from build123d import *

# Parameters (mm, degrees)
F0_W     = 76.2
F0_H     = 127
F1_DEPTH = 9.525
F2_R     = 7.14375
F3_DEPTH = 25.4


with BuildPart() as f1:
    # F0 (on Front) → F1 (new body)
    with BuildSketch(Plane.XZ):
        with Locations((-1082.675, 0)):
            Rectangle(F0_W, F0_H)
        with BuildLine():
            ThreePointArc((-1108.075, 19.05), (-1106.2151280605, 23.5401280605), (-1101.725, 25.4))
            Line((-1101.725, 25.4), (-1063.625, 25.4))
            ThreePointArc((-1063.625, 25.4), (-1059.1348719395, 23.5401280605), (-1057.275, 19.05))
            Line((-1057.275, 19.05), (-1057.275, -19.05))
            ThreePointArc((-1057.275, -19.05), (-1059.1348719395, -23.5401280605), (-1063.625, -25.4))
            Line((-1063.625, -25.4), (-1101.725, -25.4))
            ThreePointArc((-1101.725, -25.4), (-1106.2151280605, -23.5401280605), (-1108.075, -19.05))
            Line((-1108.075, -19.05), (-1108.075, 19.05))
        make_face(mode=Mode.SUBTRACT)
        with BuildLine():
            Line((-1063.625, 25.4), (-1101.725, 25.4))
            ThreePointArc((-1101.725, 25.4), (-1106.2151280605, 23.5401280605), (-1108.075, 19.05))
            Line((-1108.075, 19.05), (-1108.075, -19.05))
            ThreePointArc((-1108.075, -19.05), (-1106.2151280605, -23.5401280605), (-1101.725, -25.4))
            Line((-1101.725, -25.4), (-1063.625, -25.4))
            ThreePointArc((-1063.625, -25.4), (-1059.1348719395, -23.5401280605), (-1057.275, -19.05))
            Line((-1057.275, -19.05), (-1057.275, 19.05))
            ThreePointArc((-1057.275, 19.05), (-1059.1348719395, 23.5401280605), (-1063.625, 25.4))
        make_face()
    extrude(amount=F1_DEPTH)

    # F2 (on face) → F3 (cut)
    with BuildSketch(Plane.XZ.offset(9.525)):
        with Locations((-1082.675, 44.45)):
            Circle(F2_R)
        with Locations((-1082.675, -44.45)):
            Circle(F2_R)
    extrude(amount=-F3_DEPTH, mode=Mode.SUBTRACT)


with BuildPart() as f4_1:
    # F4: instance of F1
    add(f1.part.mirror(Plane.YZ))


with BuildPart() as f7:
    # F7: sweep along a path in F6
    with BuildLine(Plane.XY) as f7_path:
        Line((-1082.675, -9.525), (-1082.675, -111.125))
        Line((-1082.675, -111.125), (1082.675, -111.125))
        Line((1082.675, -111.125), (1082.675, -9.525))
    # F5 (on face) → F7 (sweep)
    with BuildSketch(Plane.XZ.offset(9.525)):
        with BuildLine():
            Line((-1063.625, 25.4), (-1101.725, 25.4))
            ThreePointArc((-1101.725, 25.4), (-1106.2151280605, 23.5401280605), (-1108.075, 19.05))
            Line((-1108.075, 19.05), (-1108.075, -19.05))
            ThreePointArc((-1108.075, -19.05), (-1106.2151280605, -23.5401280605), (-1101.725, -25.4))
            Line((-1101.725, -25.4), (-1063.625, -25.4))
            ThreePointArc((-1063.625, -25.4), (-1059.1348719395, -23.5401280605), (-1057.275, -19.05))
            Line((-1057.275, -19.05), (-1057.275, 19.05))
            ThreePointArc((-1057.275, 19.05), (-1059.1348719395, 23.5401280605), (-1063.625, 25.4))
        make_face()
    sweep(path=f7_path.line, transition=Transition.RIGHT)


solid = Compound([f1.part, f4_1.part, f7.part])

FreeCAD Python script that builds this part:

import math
import FreeCAD as App
import Part
import Sketcher

V = App.Vector
Q = App.Units.Quantity

doc = App.newDocument("Part")
params = doc.addObject("Spreadsheet::Sheet", "Params")
for row, (alias, value) in enumerate([
    ("sketch1_width", "3 in"),
    ("sketch1_height", "5 in"),
    ("pad1_length", "0.375 in"),
    ("sketch2_diameter", "0.5625 in"),
    ("pocket1_length", "1 in"),
    ("sketch3_radius", "0.25 in"),
    ("sketch3_width", "1.5 in"),
    ("sketch4_height", "4 in"),
    ("sketch4_width", "85.25 in"),
], start=1):
    params.set(f"A{row}", alias)
    params.set(f"B{row}", "=" + value)
    params.setAlias(f"B{row}", alias)

body = doc.addObject("PartDesign::Body", "Body")

# Sketch on XZ plane
sketch1 = body.newObject("Sketcher::SketchObject", "Sketch")
sketch1.AttachmentSupport = (doc.getObject("XZ_Plane"), [""])
sketch1.MapMode = "FlatFace"
sketch1.addGeometry([
    Part.LineSegment(V(-1121, 64, 0), V(-1121, -64, 0)),
    Part.LineSegment(V(-1121, -64, 0), V(-1045, -64, 0)),
    Part.LineSegment(V(-1045, -64, 0), V(-1045, 64, 0)),
    Part.LineSegment(V(-1045, 64, 0), V(-1121, 64, 0)),
], False)
sketch1.addConstraint([
    Sketcher.Constraint("Coincident", 0, 2, 1, 1),
    Sketcher.Constraint("Coincident", 1, 2, 2, 1),
    Sketcher.Constraint("Coincident", 2, 2, 3, 1),
    Sketcher.Constraint("Coincident", 3, 2, 0, 1),
    Sketcher.Constraint("Vertical", 0),
    Sketcher.Constraint("Horizontal", 1),
    Sketcher.Constraint("Vertical", 2),
    Sketcher.Constraint("Horizontal", 3),
    Sketcher.Constraint("DistanceX", 1, 1, 1, 2, Q("3 in")),
    Sketcher.Constraint("DistanceY", 0, 2, 0, 1, Q("5 in")),
    Sketcher.Constraint("DistanceY", 0, 2, -1, 1, Q("2.5 in")),
    Sketcher.Constraint("DistanceX", 0, 2, -1, 1, Q("44.125 in")),
])
sketch1.setExpression("Constraints[8]", "Params.sketch1_width")
sketch1.setExpression("Constraints[9]", "Params.sketch1_height")
pad1 = body.newObject("PartDesign::Pad", "Pad")
pad1.Profile = sketch1
pad1.setExpression("Length", "Params.pad1_length")

# Sketch on XZ plane
sketch2 = body.newObject("Sketcher::SketchObject", "Sketch001")
sketch2.AttachmentSupport = (doc.getObject("XZ_Plane"), [""])
sketch2.MapMode = "FlatFace"
sketch2.AttachmentOffset = App.Placement(V(0, 0, 0.375 * 25.4), App.Rotation())
sketch2.addGeometry([
    Part.Circle(V(-1083, 44, 0), V(0, 0, 1), 7),
    Part.Circle(V(-1083, -44, 0), V(0, 0, 1), 7),
], False)
sketch2.addConstraint([
    Sketcher.Constraint("Equal", 0, 1),
    Sketcher.Constraint("Symmetric", 0, 3, 1, 3, -1),
    Sketcher.Constraint("Diameter", 0, Q("0.5625 in")),
    Sketcher.Constraint("DistanceY", 1, 3, 0, 3, Q("3.5 in")),
    Sketcher.Constraint("DistanceX", 0, 3, -1, 1, Q("42.625 in")),
])
sketch2.setExpression("Constraints[2]", "Params.sketch2_diameter")
pocket1 = body.newObject("PartDesign::Pocket", "Pocket")
pocket1.Profile = sketch2
pocket1.setExpression("Length", "Params.pocket1_length")
body2 = doc.addObject("PartDesign::Body", "Body001")
doc.recompute()

mirroring = doc.addObject("Part::Mirroring", "Mirroring")
mirroring.Source = body
mirroring.Base = V(0, 0, 0)
mirroring.Normal = V(1, 0, 0)
body2.BaseFeature = mirroring
doc.recompute()
body3 = doc.addObject("PartDesign::Body", "Body002")

# Sketch on XZ plane
sketch3 = body3.newObject("Sketcher::SketchObject", "Sketch002")
sketch3.AttachmentSupport = (doc.getObject("XZ_Plane002"), [""])
sketch3.MapMode = "FlatFace"
sketch3.AttachmentOffset = App.Placement(V(0, 0, 0.375 * 25.4), App.Rotation())
sketch3.addGeometry([
    Part.LineSegment(V(-1064, 25, 0), V(-1102, 25, 0)),  # 0
    Part.ArcOfCircle(Part.Circle(V(-1102, 19, 0), V(0, 0, 1), 6), math.radians(90), math.radians(180)),  # 1
    Part.LineSegment(V(-1108, 19, 0), V(-1108, -19, 0)),  # 2
    Part.ArcOfCircle(Part.Circle(V(-1102, -19, 0), V(0, 0, 1), 6), math.radians(180), math.radians(270)),  # 3
    Part.LineSegment(V(-1102, -25, 0), V(-1064, -25, 0)),  # 4
    Part.ArcOfCircle(Part.Circle(V(-1064, -19, 0), V(0, 0, 1), 6), math.radians(-90), math.radians(0)),  # 5
    Part.LineSegment(V(-1057, -19, 0), V(-1057, 19, 0)),  # 6
    Part.ArcOfCircle(Part.Circle(V(-1064, 19, 0), V(0, 0, 1), 6), math.radians(0), math.radians(90)),  # 7
], False)
sketch3.addConstraint([
    Sketcher.Constraint("Tangent", 0, 2, 1, 1),
    Sketcher.Constraint("Tangent", 1, 2, 2, 1),
    Sketcher.Constraint("Tangent", 2, 2, 3, 1),
    Sketcher.Constraint("Tangent", 3, 2, 4, 1),
    Sketcher.Constraint("Tangent", 4, 2, 5, 1),
    Sketcher.Constraint("Tangent", 5, 2, 6, 1),
    Sketcher.Constraint("Tangent", 6, 2, 7, 1),
    Sketcher.Constraint("Tangent", 7, 2, 0, 1),
    Sketcher.Constraint("Horizontal", 0),
    Sketcher.Constraint("Vertical", 2),
    Sketcher.Constraint("Horizontal", 4),
    Sketcher.Constraint("Vertical", 6),
    Sketcher.Constraint("Equal", 1, 3),
    Sketcher.Constraint("Equal", 3, 5),
    Sketcher.Constraint("Equal", 5, 7),
    Sketcher.Constraint("Equal", 4, 2),
    Sketcher.Constraint("Radius", 1, Q("0.25 in")),
    Sketcher.Constraint("DistanceX", 0, 2, 0, 1, Q("1.5 in")),
    Sketcher.Constraint("DistanceY", -1, 1, 0, 2, Q("1 in")),
    Sketcher.Constraint("DistanceX", 1, 3, -1, 1, Q("43.375 in")),
])
sketch3.setExpression("Constraints[16]", "Params.sketch3_radius")
sketch3.setExpression("Constraints[17]", "Params.sketch3_width")

# Sketch on XY plane
sketch4 = body3.newObject("Sketcher::SketchObject", "Sketch003")
sketch4.AttachmentSupport = (doc.getObject("XY_Plane002"), [""])
sketch4.MapMode = "FlatFace"
sketch4.addGeometry([
    Part.LineSegment(V(-1083, -10, 0), V(-1083, -111, 0)),
    Part.LineSegment(V(-1083, -111, 0), V(1083, -111, 0)),
    Part.LineSegment(V(1083, -111, 0), V(1083, -10, 0)),
], False)
sketch4.addConstraint([
    Sketcher.Constraint("Coincident", 0, 2, 1, 1),
    Sketcher.Constraint("Coincident", 1, 2, 2, 1),
    Sketcher.Constraint("Vertical", 0),
    Sketcher.Constraint("Horizontal", 1),
    Sketcher.Constraint("Vertical", 2),
    Sketcher.Constraint("Symmetric", 0, 1, 2, 2, -2),
    Sketcher.Constraint("DistanceY", 0, 2, 0, 1, Q("4 in")),
    Sketcher.Constraint("DistanceX", 1, 1, 1, 2, Q("85.25 in")),
    Sketcher.Constraint("DistanceY", 0, 1, -1, 1, Q("0.375 in")),
])
sketch4.setExpression("Constraints[6]", "Params.sketch4_height")
sketch4.setExpression("Constraints[7]", "Params.sketch4_width")
doc.recompute()

additivepipe = body3.newObject("PartDesign::AdditivePipe", "AdditivePipe")
additivepipe.Profile = sketch3
additivepipe.Spine = (sketch4, ["Edge1", "Edge2", "Edge3"])
additivepipe.Transition = "Right corner"
mirroring.Visibility = False

doc.recompute()
